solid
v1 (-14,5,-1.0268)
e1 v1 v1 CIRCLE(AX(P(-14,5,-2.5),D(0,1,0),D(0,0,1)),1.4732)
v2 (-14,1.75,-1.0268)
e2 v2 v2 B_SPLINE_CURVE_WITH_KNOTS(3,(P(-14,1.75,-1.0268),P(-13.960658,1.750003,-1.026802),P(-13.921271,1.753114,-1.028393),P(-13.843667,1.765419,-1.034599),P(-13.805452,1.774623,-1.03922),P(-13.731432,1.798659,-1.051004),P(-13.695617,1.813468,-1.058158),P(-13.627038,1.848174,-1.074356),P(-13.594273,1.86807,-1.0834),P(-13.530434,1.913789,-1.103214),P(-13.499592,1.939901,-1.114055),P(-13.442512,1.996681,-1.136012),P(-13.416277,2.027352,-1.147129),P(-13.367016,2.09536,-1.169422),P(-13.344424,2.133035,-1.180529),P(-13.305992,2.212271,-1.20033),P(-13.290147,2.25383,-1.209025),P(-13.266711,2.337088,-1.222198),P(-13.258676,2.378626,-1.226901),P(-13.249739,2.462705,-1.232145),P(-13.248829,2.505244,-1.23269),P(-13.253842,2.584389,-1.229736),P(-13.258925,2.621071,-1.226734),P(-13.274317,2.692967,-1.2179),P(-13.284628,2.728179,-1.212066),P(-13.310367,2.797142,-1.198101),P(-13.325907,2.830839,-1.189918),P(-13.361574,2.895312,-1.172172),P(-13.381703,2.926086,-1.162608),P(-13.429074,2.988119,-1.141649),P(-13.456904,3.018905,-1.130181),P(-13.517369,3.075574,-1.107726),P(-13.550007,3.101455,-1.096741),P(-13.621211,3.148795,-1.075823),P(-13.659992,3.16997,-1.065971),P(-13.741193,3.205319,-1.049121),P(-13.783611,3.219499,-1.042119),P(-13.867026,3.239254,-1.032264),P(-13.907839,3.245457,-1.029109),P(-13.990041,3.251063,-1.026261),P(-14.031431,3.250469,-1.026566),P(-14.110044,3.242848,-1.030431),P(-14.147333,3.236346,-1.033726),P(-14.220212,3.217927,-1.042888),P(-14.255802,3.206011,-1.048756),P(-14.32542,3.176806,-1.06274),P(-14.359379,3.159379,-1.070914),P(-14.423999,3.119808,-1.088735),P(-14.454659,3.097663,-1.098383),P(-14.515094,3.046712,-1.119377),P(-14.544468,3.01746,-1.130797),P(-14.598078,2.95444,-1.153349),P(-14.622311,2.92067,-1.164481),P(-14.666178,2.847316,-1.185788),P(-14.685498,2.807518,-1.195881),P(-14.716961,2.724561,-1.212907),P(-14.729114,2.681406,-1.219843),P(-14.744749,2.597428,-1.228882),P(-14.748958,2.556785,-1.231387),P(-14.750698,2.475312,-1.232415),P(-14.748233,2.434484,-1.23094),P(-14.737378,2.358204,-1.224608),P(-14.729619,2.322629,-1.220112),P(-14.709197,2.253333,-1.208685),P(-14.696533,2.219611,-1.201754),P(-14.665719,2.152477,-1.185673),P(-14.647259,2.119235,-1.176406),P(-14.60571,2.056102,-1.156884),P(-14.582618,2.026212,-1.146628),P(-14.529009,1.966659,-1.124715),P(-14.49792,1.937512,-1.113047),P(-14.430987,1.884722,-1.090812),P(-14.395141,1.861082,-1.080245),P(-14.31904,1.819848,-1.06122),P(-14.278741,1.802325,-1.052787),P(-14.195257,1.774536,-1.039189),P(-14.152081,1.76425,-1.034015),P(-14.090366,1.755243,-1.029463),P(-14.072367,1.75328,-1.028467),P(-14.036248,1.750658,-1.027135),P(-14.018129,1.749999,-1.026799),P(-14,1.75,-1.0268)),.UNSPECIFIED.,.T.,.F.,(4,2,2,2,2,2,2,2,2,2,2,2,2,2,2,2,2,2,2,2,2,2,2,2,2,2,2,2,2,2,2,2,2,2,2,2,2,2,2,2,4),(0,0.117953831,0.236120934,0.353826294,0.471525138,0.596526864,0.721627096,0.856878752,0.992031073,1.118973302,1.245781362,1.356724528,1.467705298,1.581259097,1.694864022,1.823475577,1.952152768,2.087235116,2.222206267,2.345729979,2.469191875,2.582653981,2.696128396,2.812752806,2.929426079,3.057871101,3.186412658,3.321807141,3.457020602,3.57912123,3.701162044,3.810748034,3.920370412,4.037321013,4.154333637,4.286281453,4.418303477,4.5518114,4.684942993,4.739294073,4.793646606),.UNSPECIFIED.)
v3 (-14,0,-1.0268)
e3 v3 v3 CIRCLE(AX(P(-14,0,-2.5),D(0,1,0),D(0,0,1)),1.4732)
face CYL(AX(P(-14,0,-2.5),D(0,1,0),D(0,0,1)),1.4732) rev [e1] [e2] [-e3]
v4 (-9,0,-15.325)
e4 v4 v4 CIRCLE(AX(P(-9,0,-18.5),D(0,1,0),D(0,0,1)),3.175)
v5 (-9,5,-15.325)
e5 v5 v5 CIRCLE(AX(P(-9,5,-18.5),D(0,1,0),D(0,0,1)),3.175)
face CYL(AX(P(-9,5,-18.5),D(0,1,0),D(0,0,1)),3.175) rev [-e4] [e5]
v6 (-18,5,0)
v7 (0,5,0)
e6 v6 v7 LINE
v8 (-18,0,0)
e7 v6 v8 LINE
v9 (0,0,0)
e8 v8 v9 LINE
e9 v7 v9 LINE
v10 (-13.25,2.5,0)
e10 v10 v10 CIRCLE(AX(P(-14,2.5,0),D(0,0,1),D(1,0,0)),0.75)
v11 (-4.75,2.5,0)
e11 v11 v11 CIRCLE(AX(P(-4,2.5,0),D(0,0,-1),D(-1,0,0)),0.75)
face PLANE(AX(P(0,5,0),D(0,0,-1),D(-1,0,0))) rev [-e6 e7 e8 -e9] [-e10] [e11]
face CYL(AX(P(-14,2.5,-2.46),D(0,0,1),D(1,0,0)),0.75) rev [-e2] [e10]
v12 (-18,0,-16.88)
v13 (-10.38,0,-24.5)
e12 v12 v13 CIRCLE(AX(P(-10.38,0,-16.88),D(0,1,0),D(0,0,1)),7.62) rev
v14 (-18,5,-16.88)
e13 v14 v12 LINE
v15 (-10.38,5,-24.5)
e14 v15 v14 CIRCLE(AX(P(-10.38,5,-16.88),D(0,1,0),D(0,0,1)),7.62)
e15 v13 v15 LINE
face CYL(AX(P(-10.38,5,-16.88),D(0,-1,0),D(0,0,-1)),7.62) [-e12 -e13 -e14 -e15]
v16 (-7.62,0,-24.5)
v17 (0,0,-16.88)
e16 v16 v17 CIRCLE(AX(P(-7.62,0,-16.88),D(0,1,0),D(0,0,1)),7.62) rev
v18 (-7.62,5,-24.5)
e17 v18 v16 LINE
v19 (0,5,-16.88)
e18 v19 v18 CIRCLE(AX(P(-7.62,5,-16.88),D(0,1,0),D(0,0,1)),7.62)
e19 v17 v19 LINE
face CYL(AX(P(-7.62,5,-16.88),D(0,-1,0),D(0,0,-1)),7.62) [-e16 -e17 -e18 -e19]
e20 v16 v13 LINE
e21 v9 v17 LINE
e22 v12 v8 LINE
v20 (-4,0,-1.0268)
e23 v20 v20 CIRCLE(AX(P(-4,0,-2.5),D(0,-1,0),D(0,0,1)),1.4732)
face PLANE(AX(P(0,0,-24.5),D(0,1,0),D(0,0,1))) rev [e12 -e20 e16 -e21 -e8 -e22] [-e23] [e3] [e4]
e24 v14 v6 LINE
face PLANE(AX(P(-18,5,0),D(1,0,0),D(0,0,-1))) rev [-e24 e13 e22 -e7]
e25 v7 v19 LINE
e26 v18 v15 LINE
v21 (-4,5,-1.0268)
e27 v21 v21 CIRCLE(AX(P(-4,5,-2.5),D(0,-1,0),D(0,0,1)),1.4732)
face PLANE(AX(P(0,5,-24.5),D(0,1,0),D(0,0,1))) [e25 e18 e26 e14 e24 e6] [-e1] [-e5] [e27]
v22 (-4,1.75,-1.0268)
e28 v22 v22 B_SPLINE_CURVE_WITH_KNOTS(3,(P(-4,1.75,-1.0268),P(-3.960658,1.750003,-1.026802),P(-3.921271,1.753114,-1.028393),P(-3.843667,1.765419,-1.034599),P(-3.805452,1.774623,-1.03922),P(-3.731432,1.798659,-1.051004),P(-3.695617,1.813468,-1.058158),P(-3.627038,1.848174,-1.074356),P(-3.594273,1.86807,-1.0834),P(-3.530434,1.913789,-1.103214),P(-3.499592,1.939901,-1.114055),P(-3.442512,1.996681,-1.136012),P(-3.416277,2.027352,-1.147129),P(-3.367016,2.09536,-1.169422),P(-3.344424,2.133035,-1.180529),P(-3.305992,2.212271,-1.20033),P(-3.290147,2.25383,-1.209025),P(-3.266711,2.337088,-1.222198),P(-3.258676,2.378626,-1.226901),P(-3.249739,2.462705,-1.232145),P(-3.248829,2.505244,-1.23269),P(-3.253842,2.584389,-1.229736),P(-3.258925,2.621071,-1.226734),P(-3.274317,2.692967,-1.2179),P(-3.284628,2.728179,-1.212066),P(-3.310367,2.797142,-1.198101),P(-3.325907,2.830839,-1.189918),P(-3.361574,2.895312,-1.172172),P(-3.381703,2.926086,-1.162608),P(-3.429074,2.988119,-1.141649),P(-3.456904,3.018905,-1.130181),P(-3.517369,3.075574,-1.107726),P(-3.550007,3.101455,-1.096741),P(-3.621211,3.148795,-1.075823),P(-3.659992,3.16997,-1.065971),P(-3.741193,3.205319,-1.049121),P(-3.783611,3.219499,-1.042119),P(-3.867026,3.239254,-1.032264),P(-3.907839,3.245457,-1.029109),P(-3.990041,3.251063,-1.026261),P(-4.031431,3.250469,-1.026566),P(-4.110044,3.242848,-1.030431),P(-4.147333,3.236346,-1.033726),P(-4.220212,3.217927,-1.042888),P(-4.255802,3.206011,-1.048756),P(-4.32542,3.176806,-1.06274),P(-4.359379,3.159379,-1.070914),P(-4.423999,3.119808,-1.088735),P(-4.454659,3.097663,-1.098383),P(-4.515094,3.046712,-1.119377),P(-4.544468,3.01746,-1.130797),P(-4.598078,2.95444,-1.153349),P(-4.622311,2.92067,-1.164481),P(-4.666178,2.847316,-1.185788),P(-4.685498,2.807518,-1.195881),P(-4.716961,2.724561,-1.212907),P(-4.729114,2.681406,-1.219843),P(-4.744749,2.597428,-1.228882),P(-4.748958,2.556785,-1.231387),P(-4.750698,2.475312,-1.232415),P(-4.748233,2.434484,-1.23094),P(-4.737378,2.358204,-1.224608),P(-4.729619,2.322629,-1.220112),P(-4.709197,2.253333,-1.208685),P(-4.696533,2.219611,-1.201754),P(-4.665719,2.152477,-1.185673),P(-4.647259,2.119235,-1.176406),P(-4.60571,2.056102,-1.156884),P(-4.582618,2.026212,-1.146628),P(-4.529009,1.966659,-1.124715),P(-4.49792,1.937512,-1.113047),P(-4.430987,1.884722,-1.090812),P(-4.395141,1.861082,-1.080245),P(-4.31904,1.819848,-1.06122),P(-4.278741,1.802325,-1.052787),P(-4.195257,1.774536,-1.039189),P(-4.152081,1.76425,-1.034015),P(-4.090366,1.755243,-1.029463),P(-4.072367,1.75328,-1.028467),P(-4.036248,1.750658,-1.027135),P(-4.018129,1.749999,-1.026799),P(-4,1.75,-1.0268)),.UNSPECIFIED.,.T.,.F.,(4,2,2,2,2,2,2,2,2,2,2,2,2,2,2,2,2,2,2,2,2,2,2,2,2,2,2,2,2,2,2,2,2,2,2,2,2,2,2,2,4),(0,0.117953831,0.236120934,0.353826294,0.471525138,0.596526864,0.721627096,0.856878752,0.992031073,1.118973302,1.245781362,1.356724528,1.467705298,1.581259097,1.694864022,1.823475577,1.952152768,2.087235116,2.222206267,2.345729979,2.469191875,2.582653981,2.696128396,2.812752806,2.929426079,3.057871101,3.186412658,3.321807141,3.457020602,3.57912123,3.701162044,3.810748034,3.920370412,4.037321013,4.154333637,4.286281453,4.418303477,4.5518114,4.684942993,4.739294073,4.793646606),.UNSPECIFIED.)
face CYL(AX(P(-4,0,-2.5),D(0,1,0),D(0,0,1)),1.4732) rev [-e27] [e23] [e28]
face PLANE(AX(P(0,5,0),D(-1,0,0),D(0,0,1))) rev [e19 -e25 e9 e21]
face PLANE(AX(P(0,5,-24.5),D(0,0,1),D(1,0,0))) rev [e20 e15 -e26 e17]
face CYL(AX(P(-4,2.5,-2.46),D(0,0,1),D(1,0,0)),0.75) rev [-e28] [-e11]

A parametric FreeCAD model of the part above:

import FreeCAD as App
import Part
import Sketcher
from FreeCAD import Vector
Q = App.Units.Quantity


def edges_at(feature, points):
    """Names of the edges that pass closest to the given points."""
    edges = feature.Shape.Edges
    near = lambda p: min(range(len(edges)), key=lambda i: edges[i].distToShape(Part.Vertex(*p))[0])
    return sorted({f"Edge{near(p) + 1}" for p in points})


def add_polygon(sketch, points):
    """Adds a closed chain of lines whose ends are joined by coincident constraints."""
    first, n = sketch.GeometryCount, len(points)
    for a, b in zip(points, points[1:] + points[:1]):
        sketch.addGeometry(Part.LineSegment(App.Vector(*a, 0), App.Vector(*b, 0)), False)
    for i in range(n):
        sketch.addConstraint(Sketcher.Constraint("Coincident", first + i, 2, first + (i + 1) % n, 1))

doc = App.newDocument("Part")
body = doc.addObject("PartDesign::Body", "Body")

sketch1 = body.newObject("Sketcher::SketchObject", "Sketch")
sketch1.AttachmentSupport = (doc.getObject("XZ_Plane"), [""])
sketch1.MapMode = "FlatFace"
add_polygon(sketch1, [(-18, -24), (-18, 0), (0, 0), (0, -24)])
sketch1.addConstraint([
    Sketcher.Constraint("Vertical", 0),
    Sketcher.Constraint("Horizontal", 1),
    Sketcher.Constraint("Vertical", 2),
    Sketcher.Constraint("Horizontal", 3),
    Sketcher.Constraint("Coincident", 1, 2, -1, 1),
    Sketcher.Constraint("DistanceX", 1, 1, 1, 2, Q("18 mm")),
    Sketcher.Constraint("DistanceY", 0, 1, 0, 2, Q("24.5 mm")),
])
pad1 = body.newObject("PartDesign::Pad", "Pad")
pad1.Profile = sketch1
pad1.Length = 5
pad1.Reversed = True

sketch2 = body.newObject("Sketcher::SketchObject", "Sketch001")
sketch2.AttachmentSupport = (doc.getObject("XZ_Plane"), [""])
sketch2.MapMode = "FlatFace"
sketch2.AttachmentOffset = App.Placement(Vector(0, 0, -5), App.Rotation())
sketch2.addGeometry(Part.Circle(Vector(-14, -2.5, 0), Vector(0, 0, 1), 1.5), False)
sketch2.addConstraint([
    Sketcher.Constraint("DistanceX", 0, 3, -1, 1, Q("14 mm")),
    Sketcher.Constraint("Diameter", 0, Q("2.9464 mm")),
    Sketcher.Constraint("DistanceY", 0, 3, -1, 1, Q("2.5 mm")),
])
pocket1 = body.newObject("PartDesign::Pocket", "Pocket")
pocket1.Profile = sketch2
pocket1.Type = "ThroughAll"
pocket1.Reversed = True

sketch3 = body.newObject("Sketcher::SketchObject", "Sketch002")
sketch3.AttachmentSupport = (doc.getObject("XY_Plane"), [""])
sketch3.MapMode = "FlatFace"
sketch3.addGeometry(Part.Circle(Vector(-14, 2.5, 0), Vector(0, 0, 1), 0.8), False)
sketch3.addConstraint([
    Sketcher.Constraint("Diameter", 0, Q("1.5 mm")),
    Sketcher.Constraint("DistanceX", 0, 3, -1, 1, Q("14 mm")),
    Sketcher.Constraint("DistanceY", -1, 1, 0, 3, Q("2.5 mm")),
])
pocket2 = body.newObject("PartDesign::Pocket", "Pocket001")
pocket2.Profile = sketch3
pocket2.Length = 2.46
doc.recompute()

datumplane = body.newObject("PartDesign::Plane", "DatumPlane")
datumplane.AttachmentSupport = (doc.getObject("YZ_Plane"), [""])
datumplane.MapMode = "FlatFace"
datumplane.AttachmentOffset = App.Placement(Vector(0, 0, -9), App.Rotation())
mirrored = body.newObject("PartDesign::Mirrored", "Mirrored")
mirrored.Originals = [pocket1, pocket2]
mirrored.MirrorPlane = (datumplane, [""])
body.Tip = mirrored
doc.recompute()

fillet = body.newObject("PartDesign::Fillet", "Fillet")
fillet.Base = (mirrored, edges_at(mirrored, [(-18, 2.5, -24.5), (0, 2.5, -24.5)]))
fillet.Radius = 7.62

sketch4 = body.newObject("Sketcher::SketchObject", "Sketch003")
sketch4.AttachmentSupport = (doc.getObject("XZ_Plane"), [""])
sketch4.MapMode = "FlatFace"
sketch4.AttachmentOffset = App.Placement(Vector(0, 0, -5), App.Rotation())
sketch4.addGeometry(Part.Circle(Vector(-9, -18.5, 0), Vector(0, 0, 1), 2.6), False)
sketch4.addConstraint([
    Sketcher.Constraint("DistanceX", 0, 3, -1, 1, Q("9 mm")),
    Sketcher.Constraint("Diameter", 0, Q("5.1054 mm")),
    Sketcher.Constraint("DistanceY", 0, 3, -1, 1, Q("18.5 mm")),
])
doc.recompute()
hole = body.newObject("PartDesign::Hole", "Hole")
hole.Profile = sketch4
hole.ThreadType = "None"
hole.Diameter = 5.1054
hole.DepthType = "Dimension"
hole.Depth = 16.51
hole.DrillPoint = "Angled"
hole.DrillPointAngle = 118
hole.HoleCutType = "Counterbore"
hole.HoleCutDiameter = 6.35
hole.HoleCutDepth = 12.7
hole.Reversed = True

doc.recompute()
